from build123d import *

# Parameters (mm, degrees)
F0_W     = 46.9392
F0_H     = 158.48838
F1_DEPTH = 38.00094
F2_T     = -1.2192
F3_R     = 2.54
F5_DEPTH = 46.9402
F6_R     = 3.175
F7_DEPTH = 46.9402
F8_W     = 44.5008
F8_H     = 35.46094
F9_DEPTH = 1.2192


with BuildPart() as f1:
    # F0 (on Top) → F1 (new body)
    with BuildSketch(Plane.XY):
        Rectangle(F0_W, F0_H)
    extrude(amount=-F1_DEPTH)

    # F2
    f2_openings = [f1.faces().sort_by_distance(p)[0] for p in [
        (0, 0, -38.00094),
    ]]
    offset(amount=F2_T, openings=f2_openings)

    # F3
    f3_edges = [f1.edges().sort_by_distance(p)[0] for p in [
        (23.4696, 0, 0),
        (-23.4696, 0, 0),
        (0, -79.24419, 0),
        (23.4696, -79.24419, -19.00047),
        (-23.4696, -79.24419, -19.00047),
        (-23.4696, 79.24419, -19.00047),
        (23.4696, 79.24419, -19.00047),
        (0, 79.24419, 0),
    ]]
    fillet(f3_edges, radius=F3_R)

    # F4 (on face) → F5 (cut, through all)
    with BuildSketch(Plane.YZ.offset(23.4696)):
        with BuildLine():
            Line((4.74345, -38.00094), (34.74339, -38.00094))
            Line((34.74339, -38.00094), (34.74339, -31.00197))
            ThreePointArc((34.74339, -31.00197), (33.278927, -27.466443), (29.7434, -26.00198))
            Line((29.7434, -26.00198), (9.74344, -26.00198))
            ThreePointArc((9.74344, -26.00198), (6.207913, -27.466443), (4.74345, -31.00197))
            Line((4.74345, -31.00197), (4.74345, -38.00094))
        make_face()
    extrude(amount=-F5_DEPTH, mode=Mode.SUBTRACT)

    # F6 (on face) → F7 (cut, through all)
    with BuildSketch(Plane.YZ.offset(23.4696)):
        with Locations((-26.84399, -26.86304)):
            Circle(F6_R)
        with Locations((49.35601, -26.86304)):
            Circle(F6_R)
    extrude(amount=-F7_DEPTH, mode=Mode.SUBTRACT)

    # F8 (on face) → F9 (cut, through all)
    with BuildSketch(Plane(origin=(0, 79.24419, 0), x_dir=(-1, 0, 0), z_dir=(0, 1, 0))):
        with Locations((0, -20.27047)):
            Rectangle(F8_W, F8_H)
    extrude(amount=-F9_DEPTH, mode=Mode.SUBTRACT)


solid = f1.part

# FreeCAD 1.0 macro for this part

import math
import FreeCAD as App
import Part
import Sketcher
Q = App.Units.Quantity


def edges_at(feature, points):
    """Names of the edges that pass closest to the given points."""
    edges = feature.Shape.Edges
    near = lambda p: min(range(len(edges)), key=lambda i: edges[i].distToShape(Part.Vertex(*p))[0])
    return sorted({f"Edge{near(p) + 1}" for p in points})


def faces_at(feature, points):
    """Names of the faces that lie closest to the given points."""
    faces = feature.Shape.Faces
    near = lambda p: min(range(len(faces)), key=lambda i: faces[i].distToShape(Part.Vertex(*p))[0])
    return sorted({f"Face{near(p) + 1}" for p in points})


def add_polygon(sketch, points):
    """Adds a closed chain of lines whose ends are joined by coincident constraints."""
    first, n = sketch.GeometryCount, len(points)
    for a, b in zip(points, points[1:] + points[:1]):
        sketch.addGeometry(Part.LineSegment(App.Vector(*a, 0), App.Vector(*b, 0)), False)
    for i in range(n):
        sketch.addConstraint(Sketcher.Constraint("Coincident", first + i, 2, first + (i + 1) % n, 1))

doc = App.newDocument("Part")
body = doc.addObject("PartDesign::Body", "Body")

sketch1 = body.newObject("Sketcher::SketchObject", "Sketch")
sketch1.AttachmentSupport = (doc.getObject("XY_Plane"), [""])
sketch1.MapMode = "FlatFace"
add_polygon(sketch1, [(-23.4696, 79.24419), (-23.4696, -79.24419), (23.4696, -79.24419), (23.4696, 79.24419)])
sketch1.addConstraint([
    Sketcher.Constraint("Vertical", 0),
    Sketcher.Constraint("Horizontal", 1),
    Sketcher.Constraint("Vertical", 2),
    Sketcher.Constraint("Horizontal", 3),
    Sketcher.Constraint("Symmetric", 0, 2, 2, 2, -1, 1),
    Sketcher.Constraint("DistanceX", 1, 1, 1, 2, Q("1.848 in")),
    Sketcher.Constraint("DistanceY", 0, 2, 0, 1, Q("6.2397 in")),
])
pad1 = body.newObject("PartDesign::Pad", "Pad")
pad1.Profile = sketch1
pad1.Length = Q("1.4961 in")
pad1.Reversed = True
doc.recompute()

thickness = body.newObject("PartDesign::Thickness", "Thickness")
thickness.Base = (pad1, faces_at(pad1, [(0, 0, -38.001)]))
thickness.Value = Q("0.048 in")
thickness.Reversed = True
thickness.Join = "Arc"
doc.recompute()

fillet = body.newObject("PartDesign::Fillet", "Fillet")
fillet.Base = (thickness, edges_at(thickness, [
    (23.47, 0, 0),
    (-23.47, 0, 0),
    (0, -79.244, 0),
    (23.47, -79.244, -19),
    (-23.47, -79.244, -19),
    (-23.47, 79.244, -19),
    (23.47, 79.244, -19),
    (0, 79.244, 0),
]))
fillet.Radius = Q("0.1 in")

sketch2 = body.newObject("Sketcher::SketchObject", "Sketch001")
sketch2.AttachmentSupport = (doc.getObject("YZ_Plane"), [""])
sketch2.MapMode = "FlatFace"
sketch2.AttachmentOffset = App.Placement(App.Vector(0, 0, 0.924 * 25.4), App.Rotation())
sketch2.addGeometry([
    Part.LineSegment(App.Vector(4.74345, -38.00094, 0), App.Vector(34.74339, -38.00094, 0)),
    Part.LineSegment(App.Vector(34.74339, -38.00094, 0), App.Vector(34.74339, -31.00197, 0)),
    Part.ArcOfCircle(Part.Circle(App.Vector(29.743401, -31.001969, 0), App.Vector(0, 0, 1), 4.999989), math.radians(-0.000006), math.radians(90.000006)),
    Part.LineSegment(App.Vector(29.7434, -26.00198, 0), App.Vector(9.74344, -26.00198, 0)),
    Part.ArcOfCircle(Part.Circle(App.Vector(9.743439, -31.001969, 0), App.Vector(0, 0, 1), 4.999989), math.radians(89.999994), math.radians(180.000006)),
    Part.LineSegment(App.Vector(4.74345, -31.00197, 0), App.Vector(4.74345, -38.00094, 0)),
], False)
sketch2.addConstraint([
    Sketcher.Constraint("Coincident", 0, 2, 1, 1),
    Sketcher.Constraint("Tangent", 1, 2, 2, 1),
    Sketcher.Constraint("Tangent", 2, 2, 3, 1),
    Sketcher.Constraint("Tangent", 3, 2, 4, 1),
    Sketcher.Constraint("Tangent", 4, 2, 5, 1),
    Sketcher.Constraint("Coincident", 5, 2, 0, 1),
    Sketcher.Constraint("Horizontal", 0),
    Sketcher.Constraint("Vertical", 1),
    Sketcher.Constraint("Horizontal", 3),
    Sketcher.Constraint("Vertical", 5),
    Sketcher.Constraint("Equal", 2, 4),
    Sketcher.Constraint("DistanceX", 0, 1, 0, 2, Q("1.1811 in")),
    Sketcher.Constraint("DistanceX", 3, 2, 3, 1, Q("0.7874 in")),
    Sketcher.Constraint("DistanceX", -1, 1, 2, 3, Q("1.171 in")),
    Sketcher.Constraint("DistanceY", 0, 2, -1, 1, Q("1.4961 in")),
    Sketcher.Constraint("DistanceY", 2, 2, -1, 1, Q("1.0237 in")),
])
pocket1 = body.newObject("PartDesign::Pocket", "Pocket")
pocket1.Profile = sketch2
pocket1.Type = "ThroughAll"

sketch3 = body.newObject("Sketcher::SketchObject", "Sketch002")
sketch3.AttachmentSupport = (doc.getObject("YZ_Plane"), [""])
sketch3.MapMode = "FlatFace"
sketch3.AttachmentOffset = App.Placement(App.Vector(0, 0, 0.924 * 25.4), App.Rotation())
sketch3.addGeometry([
    Part.Circle(App.Vector(-26.84399, -26.86304, 0), App.Vector(0, 0, 1), 3.175),
    Part.Circle(App.Vector(49.35601, -26.86304, 0), App.Vector(0, 0, 1), 3.175),
], False)
sketch3.addConstraint([
    Sketcher.Constraint("Equal", 0, 1),
    Sketcher.Constraint("Horizontal", 0, 3, 1, 3),
    Sketcher.Constraint("Diameter", 0, Q("0.25 in")),
    Sketcher.Constraint("DistanceX", 0, 3, 1, 3, Q("3 in")),
    Sketcher.Constraint("DistanceY", 0, 3, -1, 1, Q("1.0576 in")),
    Sketcher.Constraint("DistanceX", 0, 3, -1, 1, Q("26.84399 mm")),
])
pocket2 = body.newObject("PartDesign::Pocket", "Pocket001")
pocket2.Profile = sketch3
pocket2.Type = "ThroughAll"

sketch4 = body.newObject("Sketcher::SketchObject", "Sketch003")
sketch4.AttachmentSupport = (doc.getObject("XZ_Plane"), [""])
sketch4.MapMode = "FlatFace"
sketch4.AttachmentOffset = App.Placement(App.Vector(0, 0, -79.24419), App.Rotation())
add_polygon(sketch4, [(22.2504, -2.54), (22.2504, -38.00094), (-22.2504, -38.00094), (-22.2504, -2.54)])
sketch4.addConstraint([
    Sketcher.Constraint("Vertical", 0),
    Sketcher.Constraint("Horizontal", 1),
    Sketcher.Constraint("Vertical", 2),
    Sketcher.Constraint("Horizontal", 3),
    Sketcher.Constraint("DistanceY", 2, 2, -1, 1, Q("0.1 in")),
    Sketcher.Constraint("DistanceX", 1, 2, 1, 1, Q("1.752 in")),
    Sketcher.Constraint("DistanceY", 0, 2, 0, 1, Q("1.3961 in")),
    Sketcher.Constraint("DistanceX", -1, 1, 0, 2, Q("0.876 in")),
])
pocket3 = body.newObject("PartDesign::Pocket", "Pocket002")
pocket3.Profile = sketch4
pocket3.Length = Q("0.048 in")
pocket3.Reversed = True

doc.recompute()
